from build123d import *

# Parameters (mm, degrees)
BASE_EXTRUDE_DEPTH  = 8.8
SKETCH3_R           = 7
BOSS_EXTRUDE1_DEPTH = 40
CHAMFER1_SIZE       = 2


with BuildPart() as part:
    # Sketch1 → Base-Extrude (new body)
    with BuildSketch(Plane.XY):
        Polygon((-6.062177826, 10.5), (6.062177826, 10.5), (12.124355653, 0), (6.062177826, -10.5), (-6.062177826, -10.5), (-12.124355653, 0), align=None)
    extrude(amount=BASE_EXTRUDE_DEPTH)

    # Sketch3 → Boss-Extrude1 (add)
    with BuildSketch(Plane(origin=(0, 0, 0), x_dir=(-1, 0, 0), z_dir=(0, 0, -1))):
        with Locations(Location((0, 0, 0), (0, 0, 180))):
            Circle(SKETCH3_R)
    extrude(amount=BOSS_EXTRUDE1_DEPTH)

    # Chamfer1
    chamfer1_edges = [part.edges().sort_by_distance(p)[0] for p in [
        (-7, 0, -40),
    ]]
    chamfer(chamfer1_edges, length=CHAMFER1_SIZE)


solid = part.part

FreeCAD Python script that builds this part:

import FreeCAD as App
import Part
import Sketcher

V = App.Vector
Q = App.Units.Quantity


def edges_at(feature, points):
    """Names of the edges that pass closest to the given points."""
    edges = feature.Shape.Edges
    near = lambda p: min(range(len(edges)), key=lambda i: edges[i].distToShape(Part.Vertex(*p))[0])
    return sorted({f"Edge{near(p) + 1}" for p in points})


def add_polygon(sketch, points):
    """Adds a closed chain of lines whose ends are joined by coincident constraints."""
    first, n = sketch.GeometryCount, len(points)
    for a, b in zip(points, points[1:] + points[:1]):
        sketch.addGeometry(Part.LineSegment(App.Vector(*a, 0), App.Vector(*b, 0)), False)
    for i in range(n):
        sketch.addConstraint(Sketcher.Constraint("Coincident", first + i, 2, first + (i + 1) % n, 1))

doc = App.newDocument("Part")
body = doc.addObject("PartDesign::Body", "Body")

sketch1 = body.newObject("Sketcher::SketchObject", "Sketch")
sketch1.AttachmentSupport = (doc.getObject("XY_Plane"), [""])
sketch1.MapMode = "FlatFace"
add_polygon(sketch1, [(6, 10), (-6, 10), (-12, 0), (-6, -10), (6, -10), (12, 0)])
sketch1.addConstraint(Sketcher.Constraint("Horizontal", 0))
sketch1.addConstraint(Sketcher.Constraint("Horizontal", 3))
sketch1.addConstraint(Sketcher.Constraint("Symmetric", 0, 2, 3, 2, -1, 1))
sketch1.addConstraint(Sketcher.Constraint("Symmetric", 1, 2, 4, 2, -1, 1))
sketch1.addConstraint(Sketcher.Constraint("PointOnObject", 1, 2, -1))
sketch1.addConstraint(Sketcher.Constraint("Parallel", 2, 5))
sketch1.addConstraint(Sketcher.Constraint("Vertical", 0, 2, 2, 2))
sketch1.addConstraint(Sketcher.Constraint("Angle", 1, Q("-120 deg")))
sketch1.addConstraint(Sketcher.Constraint("DistanceY", 2, 2, 0, 2, Q("21 mm")))
sketch1.addConstraint(Sketcher.Constraint("DistanceX", 0, 2, 0, 1, Q("12.124356 mm")))
pad1 = body.newObject("PartDesign::Pad", "Pad")
pad1.Profile = sketch1
pad1.Length = 8.8

sketch2 = body.newObject("Sketcher::SketchObject", "Sketch001")
sketch2.AttachmentSupport = (doc.getObject("XY_Plane"), [""])
sketch2.MapMode = "FlatFace"
sketch2.addGeometry(Part.Circle(V(0, 0, 0), V(0, 0, 1), 7), False)
sketch2.addConstraint(Sketcher.Constraint("Coincident", 0, 3, -1, 1))
sketch2.addConstraint(Sketcher.Constraint("Diameter", 0, Q("14 mm")))
pad2 = body.newObject("PartDesign::Pad", "Pad001")
pad2.Profile = sketch2
pad2.Length = 40
pad2.Reversed = True
doc.recompute()

chamfer = body.newObject("PartDesign::Chamfer", "Chamfer")
chamfer.Base = (pad2, edges_at(pad2, [(-7, 0, -40)]))
chamfer.Size = 2

doc.recompute()
